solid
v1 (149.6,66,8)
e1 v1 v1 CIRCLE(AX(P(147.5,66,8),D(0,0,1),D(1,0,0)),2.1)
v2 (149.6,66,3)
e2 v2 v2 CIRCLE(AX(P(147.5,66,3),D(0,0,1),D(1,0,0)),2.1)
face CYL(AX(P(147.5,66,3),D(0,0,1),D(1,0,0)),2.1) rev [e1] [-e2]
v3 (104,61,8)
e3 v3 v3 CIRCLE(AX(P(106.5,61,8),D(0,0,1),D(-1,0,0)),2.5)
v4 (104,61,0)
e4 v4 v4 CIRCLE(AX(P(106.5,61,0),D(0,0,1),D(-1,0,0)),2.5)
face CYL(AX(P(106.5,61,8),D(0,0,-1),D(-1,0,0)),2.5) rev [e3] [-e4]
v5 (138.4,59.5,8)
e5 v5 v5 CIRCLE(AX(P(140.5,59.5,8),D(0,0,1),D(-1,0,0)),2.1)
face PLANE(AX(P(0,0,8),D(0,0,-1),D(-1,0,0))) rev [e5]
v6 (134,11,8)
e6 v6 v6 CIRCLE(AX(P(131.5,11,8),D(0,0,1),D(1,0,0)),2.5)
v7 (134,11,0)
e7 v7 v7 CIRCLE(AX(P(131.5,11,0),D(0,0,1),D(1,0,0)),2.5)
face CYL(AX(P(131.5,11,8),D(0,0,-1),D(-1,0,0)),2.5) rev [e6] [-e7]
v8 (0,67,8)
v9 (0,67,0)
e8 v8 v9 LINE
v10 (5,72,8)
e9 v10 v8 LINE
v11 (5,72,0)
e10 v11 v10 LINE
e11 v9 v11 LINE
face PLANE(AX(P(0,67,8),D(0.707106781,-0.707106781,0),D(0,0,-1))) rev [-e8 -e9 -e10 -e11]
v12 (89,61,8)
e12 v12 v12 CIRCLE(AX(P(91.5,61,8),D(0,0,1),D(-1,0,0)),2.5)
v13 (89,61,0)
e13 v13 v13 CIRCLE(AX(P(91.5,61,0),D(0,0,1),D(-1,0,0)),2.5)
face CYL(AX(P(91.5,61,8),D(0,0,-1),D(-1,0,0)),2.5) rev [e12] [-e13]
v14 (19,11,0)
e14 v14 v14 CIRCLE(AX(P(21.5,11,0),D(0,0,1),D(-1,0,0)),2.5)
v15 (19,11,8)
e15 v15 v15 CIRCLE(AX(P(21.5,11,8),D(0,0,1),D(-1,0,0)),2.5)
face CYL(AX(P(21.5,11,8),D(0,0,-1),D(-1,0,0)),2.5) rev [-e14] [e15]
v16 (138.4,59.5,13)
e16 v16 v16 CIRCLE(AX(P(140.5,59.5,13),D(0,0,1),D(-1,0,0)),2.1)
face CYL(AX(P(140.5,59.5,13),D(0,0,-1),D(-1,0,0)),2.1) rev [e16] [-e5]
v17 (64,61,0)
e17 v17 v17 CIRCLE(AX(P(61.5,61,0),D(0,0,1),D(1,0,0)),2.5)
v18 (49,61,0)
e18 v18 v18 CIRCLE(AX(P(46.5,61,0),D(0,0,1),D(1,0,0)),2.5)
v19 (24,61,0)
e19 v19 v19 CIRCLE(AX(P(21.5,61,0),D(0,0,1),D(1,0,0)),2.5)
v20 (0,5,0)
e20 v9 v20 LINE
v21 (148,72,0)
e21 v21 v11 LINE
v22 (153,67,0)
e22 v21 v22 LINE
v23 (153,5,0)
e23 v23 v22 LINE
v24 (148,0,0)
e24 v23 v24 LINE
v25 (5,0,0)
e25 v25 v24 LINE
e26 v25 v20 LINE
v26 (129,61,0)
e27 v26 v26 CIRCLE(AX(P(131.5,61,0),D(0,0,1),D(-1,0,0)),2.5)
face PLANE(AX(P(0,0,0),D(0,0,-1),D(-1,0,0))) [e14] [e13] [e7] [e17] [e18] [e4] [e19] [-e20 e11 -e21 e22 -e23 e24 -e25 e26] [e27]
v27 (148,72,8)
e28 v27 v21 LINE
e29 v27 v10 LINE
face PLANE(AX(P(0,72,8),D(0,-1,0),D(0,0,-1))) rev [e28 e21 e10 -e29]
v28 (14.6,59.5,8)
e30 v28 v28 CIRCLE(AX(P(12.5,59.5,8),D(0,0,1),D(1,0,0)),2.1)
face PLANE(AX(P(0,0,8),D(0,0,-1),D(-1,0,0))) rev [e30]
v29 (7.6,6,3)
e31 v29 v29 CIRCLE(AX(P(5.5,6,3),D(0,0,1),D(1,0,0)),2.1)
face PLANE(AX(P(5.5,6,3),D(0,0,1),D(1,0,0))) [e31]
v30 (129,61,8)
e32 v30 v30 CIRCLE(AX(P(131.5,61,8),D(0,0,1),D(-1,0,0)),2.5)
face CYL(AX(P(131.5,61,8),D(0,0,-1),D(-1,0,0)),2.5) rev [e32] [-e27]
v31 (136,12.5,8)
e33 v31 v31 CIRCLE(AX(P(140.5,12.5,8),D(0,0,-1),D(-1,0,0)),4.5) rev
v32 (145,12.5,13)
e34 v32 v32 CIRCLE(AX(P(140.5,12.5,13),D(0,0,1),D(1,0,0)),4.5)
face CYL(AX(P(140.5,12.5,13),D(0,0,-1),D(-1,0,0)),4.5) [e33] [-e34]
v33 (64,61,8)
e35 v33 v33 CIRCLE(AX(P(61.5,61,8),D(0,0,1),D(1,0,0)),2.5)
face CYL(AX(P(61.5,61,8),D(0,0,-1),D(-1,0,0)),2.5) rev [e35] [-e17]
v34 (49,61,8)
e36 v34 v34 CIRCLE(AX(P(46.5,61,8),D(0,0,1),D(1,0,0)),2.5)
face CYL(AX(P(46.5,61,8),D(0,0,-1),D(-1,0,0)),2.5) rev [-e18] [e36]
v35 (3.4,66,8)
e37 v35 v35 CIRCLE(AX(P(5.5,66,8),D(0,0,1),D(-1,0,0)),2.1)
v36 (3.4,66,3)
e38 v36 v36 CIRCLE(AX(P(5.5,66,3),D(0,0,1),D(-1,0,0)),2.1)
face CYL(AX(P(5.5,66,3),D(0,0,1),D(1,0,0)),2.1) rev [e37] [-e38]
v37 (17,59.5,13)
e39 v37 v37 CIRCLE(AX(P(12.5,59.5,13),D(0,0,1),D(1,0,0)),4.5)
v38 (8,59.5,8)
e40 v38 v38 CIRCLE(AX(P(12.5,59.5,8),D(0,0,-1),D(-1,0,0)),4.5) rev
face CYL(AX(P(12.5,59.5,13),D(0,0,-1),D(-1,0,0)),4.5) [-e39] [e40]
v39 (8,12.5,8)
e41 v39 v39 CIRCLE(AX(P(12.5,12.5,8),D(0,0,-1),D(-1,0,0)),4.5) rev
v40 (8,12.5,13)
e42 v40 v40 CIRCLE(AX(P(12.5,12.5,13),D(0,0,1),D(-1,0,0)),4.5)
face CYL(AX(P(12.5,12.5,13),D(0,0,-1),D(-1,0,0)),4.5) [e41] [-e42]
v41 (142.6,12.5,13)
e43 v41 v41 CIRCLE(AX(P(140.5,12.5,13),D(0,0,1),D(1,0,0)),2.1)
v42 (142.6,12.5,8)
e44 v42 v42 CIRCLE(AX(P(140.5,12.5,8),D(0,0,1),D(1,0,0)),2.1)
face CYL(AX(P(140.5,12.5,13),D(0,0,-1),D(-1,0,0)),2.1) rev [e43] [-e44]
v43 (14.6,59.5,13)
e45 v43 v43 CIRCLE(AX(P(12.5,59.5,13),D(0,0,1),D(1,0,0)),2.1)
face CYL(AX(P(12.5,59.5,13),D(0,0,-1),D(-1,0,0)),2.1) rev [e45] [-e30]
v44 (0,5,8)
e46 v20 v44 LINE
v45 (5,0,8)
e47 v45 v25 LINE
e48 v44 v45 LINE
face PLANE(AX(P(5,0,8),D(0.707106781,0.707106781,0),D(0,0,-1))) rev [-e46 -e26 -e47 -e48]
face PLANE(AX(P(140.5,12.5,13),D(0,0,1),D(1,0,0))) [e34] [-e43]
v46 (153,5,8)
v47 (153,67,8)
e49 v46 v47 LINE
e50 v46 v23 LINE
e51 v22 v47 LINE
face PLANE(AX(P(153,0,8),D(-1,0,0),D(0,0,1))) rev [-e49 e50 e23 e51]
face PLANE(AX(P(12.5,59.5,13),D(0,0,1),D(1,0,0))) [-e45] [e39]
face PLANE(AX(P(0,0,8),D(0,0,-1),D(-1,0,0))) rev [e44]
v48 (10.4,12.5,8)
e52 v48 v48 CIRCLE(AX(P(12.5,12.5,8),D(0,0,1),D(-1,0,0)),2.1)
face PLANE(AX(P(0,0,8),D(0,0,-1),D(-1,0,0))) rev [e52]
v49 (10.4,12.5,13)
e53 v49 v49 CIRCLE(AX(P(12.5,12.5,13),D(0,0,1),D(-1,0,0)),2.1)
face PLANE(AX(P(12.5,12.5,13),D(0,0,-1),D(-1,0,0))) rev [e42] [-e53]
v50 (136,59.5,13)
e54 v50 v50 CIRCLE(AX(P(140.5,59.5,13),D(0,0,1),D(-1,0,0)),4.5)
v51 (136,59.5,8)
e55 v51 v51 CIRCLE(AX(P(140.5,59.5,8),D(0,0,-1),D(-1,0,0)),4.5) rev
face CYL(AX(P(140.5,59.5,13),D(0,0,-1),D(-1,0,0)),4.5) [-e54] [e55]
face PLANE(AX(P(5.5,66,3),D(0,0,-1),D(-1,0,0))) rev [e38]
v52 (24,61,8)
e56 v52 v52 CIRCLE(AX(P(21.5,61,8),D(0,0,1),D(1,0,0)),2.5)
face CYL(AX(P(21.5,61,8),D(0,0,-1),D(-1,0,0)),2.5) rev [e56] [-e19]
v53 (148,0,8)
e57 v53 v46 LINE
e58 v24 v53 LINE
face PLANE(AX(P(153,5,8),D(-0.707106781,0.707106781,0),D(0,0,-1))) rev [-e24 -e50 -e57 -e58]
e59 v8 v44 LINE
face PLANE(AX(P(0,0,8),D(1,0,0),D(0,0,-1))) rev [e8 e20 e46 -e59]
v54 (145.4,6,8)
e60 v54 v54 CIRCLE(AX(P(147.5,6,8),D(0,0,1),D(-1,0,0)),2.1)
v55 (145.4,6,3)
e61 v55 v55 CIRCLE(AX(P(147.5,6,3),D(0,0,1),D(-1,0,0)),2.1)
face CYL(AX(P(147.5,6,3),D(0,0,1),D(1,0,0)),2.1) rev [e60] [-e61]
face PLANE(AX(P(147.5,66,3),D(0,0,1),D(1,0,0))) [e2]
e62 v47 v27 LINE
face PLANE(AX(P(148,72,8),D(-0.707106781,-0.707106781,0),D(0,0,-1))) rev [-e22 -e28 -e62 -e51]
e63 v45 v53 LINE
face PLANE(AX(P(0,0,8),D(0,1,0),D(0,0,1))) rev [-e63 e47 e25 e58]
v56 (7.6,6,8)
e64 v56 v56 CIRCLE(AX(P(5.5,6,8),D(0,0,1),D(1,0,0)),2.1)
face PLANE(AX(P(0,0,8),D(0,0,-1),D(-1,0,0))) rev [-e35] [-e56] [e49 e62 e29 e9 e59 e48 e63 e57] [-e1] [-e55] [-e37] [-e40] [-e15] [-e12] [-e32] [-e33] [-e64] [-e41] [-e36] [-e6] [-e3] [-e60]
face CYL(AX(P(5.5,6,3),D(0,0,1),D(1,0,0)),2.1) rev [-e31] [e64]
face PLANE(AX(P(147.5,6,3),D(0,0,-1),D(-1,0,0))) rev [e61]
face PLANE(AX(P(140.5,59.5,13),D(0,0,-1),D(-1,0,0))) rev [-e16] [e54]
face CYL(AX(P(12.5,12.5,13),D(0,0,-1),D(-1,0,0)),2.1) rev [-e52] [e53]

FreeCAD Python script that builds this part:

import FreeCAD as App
import Part
import Sketcher

V = App.Vector


def edges_at(feature, points):
    """Names of the edges that pass closest to the given points."""
    edges = feature.Shape.Edges
    near = lambda p: min(range(len(edges)), key=lambda i: edges[i].distToShape(Part.Vertex(*p))[0])
    return sorted({f"Edge{near(p) + 1}" for p in points})


def add_polygon(sketch, points):
    """Adds a closed chain of lines whose ends are joined by coincident constraints."""
    first, n = sketch.GeometryCount, len(points)
    for a, b in zip(points, points[1:] + points[:1]):
        sketch.addGeometry(Part.LineSegment(App.Vector(*a, 0), App.Vector(*b, 0)), False)
    for i in range(n):
        sketch.addConstraint(Sketcher.Constraint("Coincident", first + i, 2, first + (i + 1) % n, 1))

doc = App.newDocument("Part")
params = doc.addObject("Spreadsheet::Sheet", "Params")
for row, (alias, value) in enumerate([
    ("sketch1_diameter", "5 mm"),
    ("sketch1_width", "153 mm"),
    ("sketch1_height", "72 mm"),
    ("pad1_length", "8 mm"),
    ("sketch2_diameter", "9 mm"),
    ("sketch2_diameter2", "4.2 mm"),
    ("pad2_length", "5 mm"),
    ("chamfer_size", "5 mm"),
    ("sketch3_diameter", "4.2 mm"),
    ("pocket1_length", "5 mm"),
], start=1):
    params.set(f"A{row}", alias)
    params.set(f"B{row}", "=" + value)
    params.setAlias(f"B{row}", alias)

body = doc.addObject("PartDesign::Body", "Body")

# Sketch on XY plane
sketch1 = body.newObject("Sketcher::SketchObject", "Sketch")
sketch1.AttachmentSupport = (doc.getObject("XY_Plane"), [""])
sketch1.MapMode = "FlatFace"
add_polygon(sketch1, [(0, 72), (0, 0), (153, 0), (153, 72)])  # lines 0-3
sketch1.addGeometry(Part.Circle(V(21.5, 11, 0), V(0, 0, 1), 2.5), False)  # 4
sketch1.addGeometry(Part.Circle(V(131.5, 11, 0), V(0, 0, 1), 2.5), False)  # 5
sketch1.addGeometry(Part.Circle(V(21.5, 61, 0), V(0, 0, 1), 2.5), False)  # 6
sketch1.addGeometry(Part.Circle(V(46.5, 61, 0), V(0, 0, 1), 2.5), False)  # 7
sketch1.addGeometry(Part.Circle(V(61.5, 61, 0), V(0, 0, 1), 2.5), False)  # 8
sketch1.addGeometry(Part.Circle(V(91.5, 61, 0), V(0, 0, 1), 2.5), False)  # 9
sketch1.addGeometry(Part.Circle(V(106.5, 61, 0), V(0, 0, 1), 2.5), False)  # 10
sketch1.addGeometry(Part.Circle(V(131.5, 61, 0), V(0, 0, 1), 2.5), False)  # 11
sketch1.addConstraint([
    Sketcher.Constraint("Vertical", 0),
    Sketcher.Constraint("Horizontal", 1),
    Sketcher.Constraint("Vertical", 2),
    Sketcher.Constraint("Horizontal", 3),
    Sketcher.Constraint("Coincident", 0, 2, -1, 1),
    Sketcher.Constraint("Equal", 4, 5),
    Sketcher.Constraint("Equal", 5, 6),
    Sketcher.Constraint("Equal", 6, 7),
    Sketcher.Constraint("Equal", 7, 8),
    Sketcher.Constraint("Equal", 8, 9),
    Sketcher.Constraint("Equal", 9, 10),
    Sketcher.Constraint("Equal", 10, 11),
    Sketcher.Constraint("Horizontal", 4, 3, 5, 3),
    Sketcher.Constraint("Horizontal", 6, 3, 7, 3),
    Sketcher.Constraint("Horizontal", 7, 3, 8, 3),
    Sketcher.Constraint("Horizontal", 8, 3, 9, 3),
    Sketcher.Constraint("Horizontal", 9, 3, 10, 3),
    Sketcher.Constraint("Horizontal", 10, 3, 11, 3),
    Sketcher.Constraint("Vertical", 4, 3, 6, 3),
    Sketcher.Constraint("Vertical", 5, 3, 11, 3),
    Sketcher.Constraint("Diameter", 4, 5.0),
    Sketcher.Constraint("DistanceX", 1, 1, 1, 2, 153.0),
    Sketcher.Constraint("DistanceY", 0, 2, 0, 1, 72.0),
    Sketcher.Constraint("DistanceY", -1, 1, 4, 3, 11.0),
    Sketcher.Constraint("DistanceY", -1, 1, 6, 3, 61.0),
    Sketcher.Constraint("DistanceX", 4, 3, 5, 3, 110.0),
    Sketcher.Constraint("DistanceX", 6, 3, 7, 3, 25.0),
    Sketcher.Constraint("DistanceX", 7, 3, 8, 3, 15.0),
    Sketcher.Constraint("DistanceX", 8, 3, 9, 3, 30.0),
    Sketcher.Constraint("DistanceX", 9, 3, 10, 3, 15.0),
    Sketcher.Constraint("DistanceX", -1, 1, 4, 3, 21.5),
])
sketch1.setExpression("Constraints[24]", "Params.sketch1_diameter")
sketch1.setExpression("Constraints[25]", "Params.sketch1_width")
sketch1.setExpression("Constraints[26]", "Params.sketch1_height")
pad1 = body.newObject("PartDesign::Pad", "Pad")
pad1.Profile = sketch1
pad1.setExpression("Length", "Params.pad1_length")

# Sketch on XY plane
sketch2 = body.newObject("Sketcher::SketchObject", "Sketch001")
sketch2.AttachmentSupport = (doc.getObject("XY_Plane"), [""])
sketch2.MapMode = "FlatFace"
sketch2.AttachmentOffset = App.Placement(V(0, 0, 8), App.Rotation())
sketch2.addGeometry([
    Part.Circle(V(12.5, 59.5, 0), V(0, 0, 1), 4.5),  # 0
    Part.Circle(V(12.5, 59.5, 0), V(0, 0, 1), 2.1),  # 1
    Part.Circle(V(12.5, 12.5, 0), V(0, 0, 1), 4.5),  # 2
    Part.Circle(V(12.5, 12.5, 0), V(0, 0, 1), 2.1),  # 3
    Part.Circle(V(140.5, 59.5, 0), V(0, 0, 1), 4.5),  # 4
    Part.Circle(V(140.5, 59.5, 0), V(0, 0, 1), 2.1),  # 5
    Part.Circle(V(140.5, 12.5, 0), V(0, 0, 1), 4.5),  # 6
    Part.Circle(V(140.5, 12.5, 0), V(0, 0, 1), 2.1),  # 7
], False)
sketch2.addConstraint([
    Sketcher.Constraint("Coincident", 1, 3, 0, 3),
    Sketcher.Constraint("Coincident", 3, 3, 2, 3),
    Sketcher.Constraint("Coincident", 5, 3, 4, 3),
    Sketcher.Constraint("Coincident", 7, 3, 6, 3),
    Sketcher.Constraint("Equal", 0, 2),
    Sketcher.Constraint("Equal", 1, 3),
    Sketcher.Constraint("Equal", 2, 4),
    Sketcher.Constraint("Equal", 3, 5),
    Sketcher.Constraint("Equal", 4, 6),
    Sketcher.Constraint("Equal", 5, 7),
    Sketcher.Constraint("Horizontal", 1, 3, 4, 3),
    Sketcher.Constraint("Horizontal", 3, 3, 6, 3),
    Sketcher.Constraint("Vertical", 1, 3, 2, 3),
    Sketcher.Constraint("Vertical", 5, 3, 6, 3),
    Sketcher.Constraint("Diameter", 0, 9.0),
    Sketcher.Constraint("Diameter", 1, 4.2),
    Sketcher.Constraint("DistanceY", 2, 3, 0, 3, 47.0),
    Sketcher.Constraint("DistanceX", 0, 3, 4, 3, 128.0),
    Sketcher.Constraint("DistanceX", -1, 1, 0, 3, 12.5),
    Sketcher.Constraint("DistanceY", -1, 1, 0, 3, 59.5),
])
sketch2.setExpression("Constraints[14]", "Params.sketch2_diameter")
sketch2.setExpression("Constraints[15]", "Params.sketch2_diameter2")
pad2 = body.newObject("PartDesign::Pad", "Pad001")
pad2.Profile = sketch2
pad2.setExpression("Length", "Params.pad2_length")
doc.recompute()

chamfer = body.newObject("PartDesign::Chamfer", "Chamfer")
chamfer.Base = (pad2, edges_at(pad2, [
    (0, 72, 4),
    (153, 72, 4),
    (153, 0, 4),
    (0, 0, 4),
]))
chamfer.setExpression("Size", "Params.chamfer_size")

# Sketch on XY plane
sketch3 = body.newObject("Sketcher::SketchObject", "Sketch002")
sketch3.AttachmentSupport = (doc.getObject("XY_Plane"), [""])
sketch3.MapMode = "FlatFace"
sketch3.AttachmentOffset = App.Placement(V(0, 0, 8), App.Rotation())
sketch3.addGeometry([
    Part.Circle(V(5.5, 6, 0), V(0, 0, 1), 2.1),
    Part.Circle(V(5.5, 66, 0), V(0, 0, 1), 2.1),
    Part.Circle(V(147.5, 6, 0), V(0, 0, 1), 2.1),
    Part.Circle(V(147.5, 66, 0), V(0, 0, 1), 2.1),
], False)
sketch3.addConstraint([
    Sketcher.Constraint("Equal", 0, 1),
    Sketcher.Constraint("Equal", 1, 2),
    Sketcher.Constraint("Equal", 2, 3),
    Sketcher.Constraint("Horizontal", 0, 3, 2, 3),
    Sketcher.Constraint("Horizontal", 1, 3, 3, 3),
    Sketcher.Constraint("Vertical", 0, 3, 1, 3),
    Sketcher.Constraint("Vertical", 2, 3, 3, 3),
    Sketcher.Constraint("Diameter", 0, 4.2),
    Sketcher.Constraint("DistanceY", -1, 1, 0, 3, 6.0),
    Sketcher.Constraint("DistanceY", -1, 1, 1, 3, 66.0),
    Sketcher.Constraint("DistanceX", 0, 3, 2, 3, 142.0),
    Sketcher.Constraint("DistanceX", -1, 1, 0, 3, 5.5),
])
sketch3.setExpression("Constraints[7]", "Params.sketch3_diameter")
pocket1 = body.newObject("PartDesign::Pocket", "Pocket")
pocket1.Profile = sketch3
pocket1.setExpression("Length", "Params.pocket1_length")

doc.recompute()
